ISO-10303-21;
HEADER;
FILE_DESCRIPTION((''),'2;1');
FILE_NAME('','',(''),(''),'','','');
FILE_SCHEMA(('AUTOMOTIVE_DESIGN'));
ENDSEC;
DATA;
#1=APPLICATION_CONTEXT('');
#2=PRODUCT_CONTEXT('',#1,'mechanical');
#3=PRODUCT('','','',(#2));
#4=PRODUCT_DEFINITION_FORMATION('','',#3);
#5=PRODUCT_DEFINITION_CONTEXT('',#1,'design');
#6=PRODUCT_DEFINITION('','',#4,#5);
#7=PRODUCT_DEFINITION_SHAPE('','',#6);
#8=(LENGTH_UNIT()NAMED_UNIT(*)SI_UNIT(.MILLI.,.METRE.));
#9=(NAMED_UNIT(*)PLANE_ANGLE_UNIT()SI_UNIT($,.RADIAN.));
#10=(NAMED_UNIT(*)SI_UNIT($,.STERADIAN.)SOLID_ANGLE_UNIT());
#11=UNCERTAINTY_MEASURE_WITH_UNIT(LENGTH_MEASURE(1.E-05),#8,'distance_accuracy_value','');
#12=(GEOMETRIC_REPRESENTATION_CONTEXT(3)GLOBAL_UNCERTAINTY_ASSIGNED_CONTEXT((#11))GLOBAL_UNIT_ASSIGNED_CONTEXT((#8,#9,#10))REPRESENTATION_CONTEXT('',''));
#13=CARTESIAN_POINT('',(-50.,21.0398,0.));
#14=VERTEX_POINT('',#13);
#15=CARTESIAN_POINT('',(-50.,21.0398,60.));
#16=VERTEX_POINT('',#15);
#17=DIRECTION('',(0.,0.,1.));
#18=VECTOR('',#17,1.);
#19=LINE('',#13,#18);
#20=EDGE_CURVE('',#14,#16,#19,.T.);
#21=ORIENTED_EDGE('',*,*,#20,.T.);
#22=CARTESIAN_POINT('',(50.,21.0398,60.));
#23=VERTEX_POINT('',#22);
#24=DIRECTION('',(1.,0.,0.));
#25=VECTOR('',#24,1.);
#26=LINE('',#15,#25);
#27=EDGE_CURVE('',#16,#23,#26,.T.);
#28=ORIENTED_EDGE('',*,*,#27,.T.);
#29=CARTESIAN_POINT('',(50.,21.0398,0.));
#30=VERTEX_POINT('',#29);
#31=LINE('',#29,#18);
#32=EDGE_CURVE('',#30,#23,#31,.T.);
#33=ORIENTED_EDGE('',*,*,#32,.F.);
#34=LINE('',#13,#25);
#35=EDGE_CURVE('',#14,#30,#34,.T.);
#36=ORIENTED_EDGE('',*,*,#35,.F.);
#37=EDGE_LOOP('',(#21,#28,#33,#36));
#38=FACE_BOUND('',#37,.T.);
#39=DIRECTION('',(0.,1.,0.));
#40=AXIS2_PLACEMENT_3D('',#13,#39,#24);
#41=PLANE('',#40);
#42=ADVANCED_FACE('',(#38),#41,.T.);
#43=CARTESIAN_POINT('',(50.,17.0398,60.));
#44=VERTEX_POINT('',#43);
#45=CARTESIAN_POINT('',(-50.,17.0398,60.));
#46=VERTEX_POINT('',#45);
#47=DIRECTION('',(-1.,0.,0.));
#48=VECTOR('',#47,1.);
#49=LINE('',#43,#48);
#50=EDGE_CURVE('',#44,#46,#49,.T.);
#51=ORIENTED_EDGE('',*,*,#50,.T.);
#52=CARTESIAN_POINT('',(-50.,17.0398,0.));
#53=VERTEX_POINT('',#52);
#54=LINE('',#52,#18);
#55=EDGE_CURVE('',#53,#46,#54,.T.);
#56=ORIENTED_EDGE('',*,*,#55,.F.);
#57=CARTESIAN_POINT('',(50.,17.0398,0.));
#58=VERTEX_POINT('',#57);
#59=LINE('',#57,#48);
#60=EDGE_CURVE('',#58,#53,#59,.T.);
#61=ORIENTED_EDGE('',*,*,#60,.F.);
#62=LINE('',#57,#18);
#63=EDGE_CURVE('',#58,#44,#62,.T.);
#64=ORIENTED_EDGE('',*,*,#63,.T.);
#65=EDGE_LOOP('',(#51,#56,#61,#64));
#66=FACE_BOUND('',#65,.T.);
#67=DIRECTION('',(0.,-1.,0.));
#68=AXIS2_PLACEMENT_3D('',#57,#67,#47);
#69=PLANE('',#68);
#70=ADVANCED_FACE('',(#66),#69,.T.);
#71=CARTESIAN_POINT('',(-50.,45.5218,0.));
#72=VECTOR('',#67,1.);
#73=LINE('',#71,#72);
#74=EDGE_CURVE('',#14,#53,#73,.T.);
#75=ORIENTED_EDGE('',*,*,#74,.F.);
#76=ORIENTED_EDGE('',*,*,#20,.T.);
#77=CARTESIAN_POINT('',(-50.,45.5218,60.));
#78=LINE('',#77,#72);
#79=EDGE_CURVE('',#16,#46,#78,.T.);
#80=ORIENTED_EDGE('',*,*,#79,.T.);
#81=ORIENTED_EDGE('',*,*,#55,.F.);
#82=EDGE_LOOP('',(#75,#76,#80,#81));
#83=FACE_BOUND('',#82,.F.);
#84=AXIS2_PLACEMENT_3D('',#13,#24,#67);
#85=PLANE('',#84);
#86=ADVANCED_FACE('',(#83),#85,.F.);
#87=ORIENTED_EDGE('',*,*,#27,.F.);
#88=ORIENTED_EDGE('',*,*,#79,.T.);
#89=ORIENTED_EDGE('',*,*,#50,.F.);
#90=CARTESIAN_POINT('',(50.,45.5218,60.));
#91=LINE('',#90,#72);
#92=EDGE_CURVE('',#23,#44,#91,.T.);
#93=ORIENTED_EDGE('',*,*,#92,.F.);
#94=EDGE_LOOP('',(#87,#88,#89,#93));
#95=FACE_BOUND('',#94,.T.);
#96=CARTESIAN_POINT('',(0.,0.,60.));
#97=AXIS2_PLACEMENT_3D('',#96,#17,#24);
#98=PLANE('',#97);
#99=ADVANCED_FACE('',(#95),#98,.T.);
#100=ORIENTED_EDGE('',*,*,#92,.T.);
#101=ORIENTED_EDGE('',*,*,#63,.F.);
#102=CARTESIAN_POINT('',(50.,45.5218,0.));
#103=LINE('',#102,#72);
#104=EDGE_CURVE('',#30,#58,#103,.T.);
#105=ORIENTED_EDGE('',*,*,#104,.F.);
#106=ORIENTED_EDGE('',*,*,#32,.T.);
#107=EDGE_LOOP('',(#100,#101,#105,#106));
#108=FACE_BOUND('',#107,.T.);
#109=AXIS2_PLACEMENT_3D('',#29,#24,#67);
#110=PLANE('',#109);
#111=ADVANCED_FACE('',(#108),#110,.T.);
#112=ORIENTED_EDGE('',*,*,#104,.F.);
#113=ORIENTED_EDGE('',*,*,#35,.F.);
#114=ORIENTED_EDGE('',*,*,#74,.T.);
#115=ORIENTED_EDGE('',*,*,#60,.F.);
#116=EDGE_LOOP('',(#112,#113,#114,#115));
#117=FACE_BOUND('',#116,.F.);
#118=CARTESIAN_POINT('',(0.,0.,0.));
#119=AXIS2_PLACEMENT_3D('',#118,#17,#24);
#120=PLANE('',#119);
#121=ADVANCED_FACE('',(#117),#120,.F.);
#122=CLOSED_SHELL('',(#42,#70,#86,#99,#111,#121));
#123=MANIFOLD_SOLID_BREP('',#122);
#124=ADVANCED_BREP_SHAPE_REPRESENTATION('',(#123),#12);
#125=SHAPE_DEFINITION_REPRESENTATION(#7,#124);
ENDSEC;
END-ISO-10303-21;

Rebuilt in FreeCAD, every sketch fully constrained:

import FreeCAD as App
import Part
import Sketcher

V = App.Vector


def add_polygon(sketch, points):
    """Adds a closed chain of lines whose ends are joined by coincident constraints."""
    first, n = sketch.GeometryCount, len(points)
    for a, b in zip(points, points[1:] + points[:1]):
        sketch.addGeometry(Part.LineSegment(App.Vector(*a, 0), App.Vector(*b, 0)), False)
    for i in range(n):
        sketch.addConstraint(Sketcher.Constraint("Coincident", first + i, 2, first + (i + 1) % n, 1))

doc = App.newDocument("Part")
body = doc.addObject("PartDesign::Body", "Body")

# Sketch on XY plane
sketch1 = body.newObject("Sketcher::SketchObject", "Sketch")
sketch1.AttachmentSupport = (doc.getObject("XY_Plane"), [""])
sketch1.MapMode = "FlatFace"
add_polygon(sketch1, [(50, 17), (50, 21), (-50, 21), (-50, 17)])  # lines 0-3
sketch1.addConstraint(Sketcher.Constraint("Vertical", 0))
sketch1.addConstraint(Sketcher.Constraint("Horizontal", 1))
sketch1.addConstraint(Sketcher.Constraint("Vertical", 2))
sketch1.addConstraint(Sketcher.Constraint("Horizontal", 3))
sketch1.addConstraint(Sketcher.Constraint("DistanceX", 1, 2, 1, 1, 100.0))
sketch1.addConstraint(Sketcher.Constraint("DistanceY", 0, 1, 0, 2, 4.0))
sketch1.addConstraint(Sketcher.Constraint("DistanceX", -1, 1, 0, 2, 50.0))
sketch1.addConstraint(Sketcher.Constraint("DistanceY", -1, 1, 0, 2, 21.0398))
pad1 = body.newObject("PartDesign::Pad", "Pad")
pad1.Profile = sketch1
pad1.Length = 60

doc.recompute()
